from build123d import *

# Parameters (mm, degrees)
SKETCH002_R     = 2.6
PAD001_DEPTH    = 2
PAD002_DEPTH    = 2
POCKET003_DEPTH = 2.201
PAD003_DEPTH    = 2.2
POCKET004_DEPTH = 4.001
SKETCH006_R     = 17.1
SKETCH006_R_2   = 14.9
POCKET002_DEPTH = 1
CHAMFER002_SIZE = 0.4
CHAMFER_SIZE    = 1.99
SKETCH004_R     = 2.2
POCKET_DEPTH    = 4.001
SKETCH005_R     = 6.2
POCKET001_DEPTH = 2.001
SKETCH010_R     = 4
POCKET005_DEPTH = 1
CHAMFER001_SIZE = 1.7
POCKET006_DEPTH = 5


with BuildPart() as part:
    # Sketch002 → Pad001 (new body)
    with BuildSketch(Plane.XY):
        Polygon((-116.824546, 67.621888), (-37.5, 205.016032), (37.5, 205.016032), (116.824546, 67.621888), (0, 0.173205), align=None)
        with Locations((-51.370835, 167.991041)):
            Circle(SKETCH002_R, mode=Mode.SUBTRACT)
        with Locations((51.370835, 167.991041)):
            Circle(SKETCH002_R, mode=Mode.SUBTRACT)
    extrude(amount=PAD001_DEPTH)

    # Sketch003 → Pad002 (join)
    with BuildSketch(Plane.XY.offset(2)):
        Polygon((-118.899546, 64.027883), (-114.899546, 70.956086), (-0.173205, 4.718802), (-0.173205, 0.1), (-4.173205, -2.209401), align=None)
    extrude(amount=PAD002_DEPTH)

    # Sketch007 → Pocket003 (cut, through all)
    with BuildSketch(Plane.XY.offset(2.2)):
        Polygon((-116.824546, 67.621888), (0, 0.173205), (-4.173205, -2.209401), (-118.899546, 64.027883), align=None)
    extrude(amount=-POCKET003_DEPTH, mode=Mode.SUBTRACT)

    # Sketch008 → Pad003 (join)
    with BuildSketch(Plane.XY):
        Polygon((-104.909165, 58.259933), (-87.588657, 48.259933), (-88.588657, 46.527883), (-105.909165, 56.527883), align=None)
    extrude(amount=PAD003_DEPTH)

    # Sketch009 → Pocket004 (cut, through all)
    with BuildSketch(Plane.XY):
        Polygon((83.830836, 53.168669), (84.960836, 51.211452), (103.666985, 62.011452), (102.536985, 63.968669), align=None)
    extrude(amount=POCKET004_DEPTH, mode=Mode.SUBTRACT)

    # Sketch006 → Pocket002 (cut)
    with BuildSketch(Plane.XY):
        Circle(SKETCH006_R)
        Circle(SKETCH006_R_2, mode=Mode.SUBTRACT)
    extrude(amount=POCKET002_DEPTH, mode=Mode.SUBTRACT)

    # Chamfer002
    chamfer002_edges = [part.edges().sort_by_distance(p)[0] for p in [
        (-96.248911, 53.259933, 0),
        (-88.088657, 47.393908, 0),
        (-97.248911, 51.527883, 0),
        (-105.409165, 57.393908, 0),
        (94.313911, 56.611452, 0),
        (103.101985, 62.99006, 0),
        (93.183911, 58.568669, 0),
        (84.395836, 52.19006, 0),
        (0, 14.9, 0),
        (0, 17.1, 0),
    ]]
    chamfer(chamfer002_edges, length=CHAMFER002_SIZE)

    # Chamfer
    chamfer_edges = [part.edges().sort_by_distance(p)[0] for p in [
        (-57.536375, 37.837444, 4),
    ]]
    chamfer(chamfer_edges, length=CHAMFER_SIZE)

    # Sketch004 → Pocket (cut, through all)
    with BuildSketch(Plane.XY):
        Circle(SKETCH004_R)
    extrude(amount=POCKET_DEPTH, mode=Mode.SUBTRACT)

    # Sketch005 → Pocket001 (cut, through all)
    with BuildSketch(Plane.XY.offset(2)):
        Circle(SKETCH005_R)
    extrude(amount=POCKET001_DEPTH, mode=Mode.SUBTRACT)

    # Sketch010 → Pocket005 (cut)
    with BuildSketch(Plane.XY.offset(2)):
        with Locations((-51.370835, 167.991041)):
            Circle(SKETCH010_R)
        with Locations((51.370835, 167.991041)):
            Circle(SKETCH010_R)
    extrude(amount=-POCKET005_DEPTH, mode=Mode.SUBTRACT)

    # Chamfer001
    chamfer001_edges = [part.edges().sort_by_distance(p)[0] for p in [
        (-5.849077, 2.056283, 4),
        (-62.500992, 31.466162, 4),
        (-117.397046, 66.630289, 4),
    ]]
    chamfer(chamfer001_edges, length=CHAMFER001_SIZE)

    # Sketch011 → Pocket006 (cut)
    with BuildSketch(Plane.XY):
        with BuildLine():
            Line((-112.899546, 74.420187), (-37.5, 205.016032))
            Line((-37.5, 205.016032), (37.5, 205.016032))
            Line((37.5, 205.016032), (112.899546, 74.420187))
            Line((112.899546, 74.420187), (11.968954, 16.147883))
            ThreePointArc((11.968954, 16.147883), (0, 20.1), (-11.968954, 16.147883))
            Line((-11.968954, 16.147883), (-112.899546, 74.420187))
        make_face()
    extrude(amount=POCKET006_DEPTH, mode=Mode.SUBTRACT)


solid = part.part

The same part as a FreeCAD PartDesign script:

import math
import FreeCAD as App
import Part
import Sketcher
from FreeCAD import Vector
Q = App.Units.Quantity


def edges_at(feature, points):
    """Names of the edges that pass closest to the given points."""
    edges = feature.Shape.Edges
    near = lambda p: min(range(len(edges)), key=lambda i: edges[i].distToShape(Part.Vertex(*p))[0])
    return sorted({f"Edge{near(p) + 1}" for p in points})

doc = App.newDocument("Part")
body = doc.addObject("PartDesign::Body", "Body")

# Sketch on XY plane
sketch1 = doc.addObject("Sketcher::SketchObject", "Sketch")
body.addObject(sketch1)
sketch1.AttachmentSupport = (doc.XY_Plane, [""])
sketch1.MapMode = "FlatFace"
sketch1.addGeometry([
    Part.LineSegment(Vector(-37.5, 205, 0), Vector(-116.8, 67.6, 0)),  # 0
    Part.LineSegment(Vector(-116.8, 67.6, 0), Vector(0, 0.2, 0)),  # 1
    Part.LineSegment(Vector(0, 0.2, 0), Vector(116.8, 67.6, 0)),  # 2
    Part.LineSegment(Vector(116.8, 67.6, 0), Vector(37.5, 205, 0)),  # 3
    Part.LineSegment(Vector(37.5, 205, 0), Vector(-37.5, 205, 0)),  # 4
    Part.Circle(Vector(51.4, 168, 0), Vector(0, 0, 1), 2.6),  # 5
    Part.Circle(Vector(-51.4, 168, 0), Vector(0, 0, 1), 2.6),  # 6
], False)
sketch1.addConstraint([
    Sketcher.Constraint("Coincident", 0, 2, 1, 1),
    Sketcher.Constraint("Coincident", 1, 2, 2, 1),
    Sketcher.Constraint("Coincident", 2, 2, 3, 1),
    Sketcher.Constraint("Coincident", 3, 2, 4, 1),
    Sketcher.Constraint("Coincident", 4, 2, 0, 1),
    Sketcher.Constraint("Horizontal", 4),
    Sketcher.Constraint("Equal", 5, 6),
    Sketcher.Constraint("Symmetric", 5, 3, 6, 3, -2),
    Sketcher.Constraint("Symmetric", 0, 2, 2, 2, -2),
    Sketcher.Constraint("PointOnObject", 1, 2, -2),
    Sketcher.Constraint("Perpendicular", 0, 1),
    Sketcher.Constraint("Perpendicular", 2, 3),
    Sketcher.Constraint("Diameter", 5, 5.2),
    Sketcher.Constraint("DistanceX", 4, 2, 4, 1, 75.0),
    Sketcher.Constraint("Angle", 0, Q("-120 deg")),
    Sketcher.Constraint("DistanceY", -1, 1, 5, 3, 167.991041),
    Sketcher.Constraint("DistanceY", -1, 1, 0, 2, 67.621888),
    Sketcher.Constraint("DistanceY", -1, 1, 3, 2, 205.016032),
    Sketcher.Constraint("DistanceX", 6, 3, 5, 3, 102.74167),
])
pad1 = doc.addObject("PartDesign::Pad", "Pad")
body.addObject(pad1)
pad1.Profile = sketch1
pad1.Length = 2

# Sketch on XY plane
sketch2 = doc.addObject("Sketcher::SketchObject", "Sketch001")
body.addObject(sketch2)
sketch2.AttachmentSupport = (doc.XY_Plane, [""])
sketch2.MapMode = "FlatFace"
sketch2.AttachmentOffset = App.Placement(Vector(0, 0, 2), App.Rotation())
sketch2.addGeometry([
    Part.LineSegment(Vector(-114.9, 71, 0), Vector(-118.9, 64, 0)),  # 0
    Part.LineSegment(Vector(-118.9, 64, 0), Vector(-4.2, -2.2, 0)),  # 1
    Part.LineSegment(Vector(-4.2, -2.2, 0), Vector(-0.2, 0.1, 0)),  # 2
    Part.LineSegment(Vector(-0.2, 0.1, 0), Vector(-0.2, 4.7, 0)),  # 3
    Part.LineSegment(Vector(-0.2, 4.7, 0), Vector(-114.9, 71, 0)),  # 4
], False)
sketch2.addConstraint([
    Sketcher.Constraint("Coincident", 0, 2, 1, 1),
    Sketcher.Constraint("Coincident", 1, 2, 2, 1),
    Sketcher.Constraint("Coincident", 2, 2, 3, 1),
    Sketcher.Constraint("Coincident", 3, 2, 4, 1),
    Sketcher.Constraint("Coincident", 4, 2, 0, 1),
    Sketcher.Constraint("Vertical", 3),
    Sketcher.Constraint("Perpendicular", 0, 1),
    Sketcher.Constraint("Parallel", 1, 4),
    Sketcher.Constraint("Equal", 1, 4),
    Sketcher.Constraint("Angle", 0, Q("-120.000001 deg")),
    Sketcher.Constraint("Angle", 2, Q("29.999999 deg")),
    Sketcher.Constraint("Distance", 0, 8.0),
    Sketcher.Constraint("DistanceY", -1, 1, 2, 2, 0.1),
    Sketcher.Constraint("DistanceX", 0, 2, 1, 2, 114.726341),
    Sketcher.Constraint("DistanceX", 0, 2, -1, 1, 118.899546),
])
pad2 = doc.addObject("PartDesign::Pad", "Pad001")
body.addObject(pad2)
pad2.Profile = sketch2
pad2.Length = 2

# Sketch on XY plane
sketch3 = doc.addObject("Sketcher::SketchObject", "Sketch002")
body.addObject(sketch3)
sketch3.AttachmentSupport = (doc.XY_Plane, [""])
sketch3.MapMode = "FlatFace"
sketch3.AttachmentOffset = App.Placement(Vector(0, 0, 2.2), App.Rotation())
sketch3.addGeometry([
    Part.LineSegment(Vector(0, 0.2, 0), Vector(-116.8, 67.6, 0)),
    Part.LineSegment(Vector(-116.8, 67.6, 0), Vector(-118.9, 64, 0)),
    Part.LineSegment(Vector(-118.9, 64, 0), Vector(-4.2, -2.2, 0)),
    Part.LineSegment(Vector(-4.2, -2.2, 0), Vector(0, 0.2, 0)),
], False)
sketch3.addConstraint([
    Sketcher.Constraint("Coincident", 0, 2, 1, 1),
    Sketcher.Constraint("Coincident", 1, 2, 2, 1),
    Sketcher.Constraint("Coincident", 2, 2, 3, 1),
    Sketcher.Constraint("Coincident", 3, 2, 0, 1),
    Sketcher.Constraint("PointOnObject", 3, 2, -2),
    Sketcher.Constraint("Perpendicular", 0, 1),
    Sketcher.Constraint("Perpendicular", 1, 2),
    Sketcher.Constraint("Angle", 0, Q("150 deg")),
    Sketcher.Constraint("Distance", 1, 4.15),
    Sketcher.Constraint("DistanceY", 2, 2, -1, 1, 2.209401),
    Sketcher.Constraint("Distance", 3, 4.805461),
    Sketcher.Constraint("DistanceY", -1, 1, 0, 2, 67.621888),
])
pocket1 = doc.addObject("PartDesign::Pocket", "Pocket")
body.addObject(pocket1)
pocket1.Profile = sketch3
pocket1.Type = "ThroughAll"

# Sketch on XY plane
sketch4 = doc.addObject("Sketcher::SketchObject", "Sketch003")
body.addObject(sketch4)
sketch4.AttachmentSupport = (doc.XY_Plane, [""])
sketch4.MapMode = "FlatFace"
sketch4.addGeometry([
    Part.LineSegment(Vector(-87.6, 48.3, 0), Vector(-104.9, 58.3, 0)),
    Part.LineSegment(Vector(-104.9, 58.3, 0), Vector(-105.9, 56.5, 0)),
    Part.LineSegment(Vector(-105.9, 56.5, 0), Vector(-88.6, 46.5, 0)),
    Part.LineSegment(Vector(-88.6, 46.5, 0), Vector(-87.6, 48.3, 0)),
], False)
sketch4.addConstraint([
    Sketcher.Constraint("Coincident", 0, 2, 1, 1),
    Sketcher.Constraint("Coincident", 1, 2, 2, 1),
    Sketcher.Constraint("Coincident", 2, 2, 3, 1),
    Sketcher.Constraint("Coincident", 3, 2, 0, 1),
    Sketcher.Constraint("Perpendicular", 0, 1),
    Sketcher.Constraint("Perpendicular", 1, 2),
    Sketcher.Constraint("Perpendicular", 2, 3),
    Sketcher.Constraint("Angle", 0, Q("150 deg")),
    Sketcher.Constraint("Distance", 0, 20.0),
    Sketcher.Constraint("Distance", 1, 1.999999),
    Sketcher.Constraint("DistanceX", 0, 2, -1, 1, 104.909165),
    Sketcher.Constraint("DistanceY", -1, 1, 0, 2, 58.259933),
])
pad3 = doc.addObject("PartDesign::Pad", "Pad002")
body.addObject(pad3)
pad3.Profile = sketch4
pad3.Length = 2.2

# Sketch on XY plane
sketch5 = doc.addObject("Sketcher::SketchObject", "Sketch004")
body.addObject(sketch5)
sketch5.AttachmentSupport = (doc.XY_Plane, [""])
sketch5.MapMode = "FlatFace"
sketch5.addGeometry([
    Part.LineSegment(Vector(83.8, 53.2, 0), Vector(85, 51.2, 0)),
    Part.LineSegment(Vector(85, 51.2, 0), Vector(103.7, 62, 0)),
    Part.LineSegment(Vector(103.7, 62, 0), Vector(102.5, 64, 0)),
    Part.LineSegment(Vector(102.5, 64, 0), Vector(83.8, 53.2, 0)),
], False)
sketch5.addConstraint([
    Sketcher.Constraint("Coincident", 0, 2, 1, 1),
    Sketcher.Constraint("Coincident", 1, 2, 2, 1),
    Sketcher.Constraint("Coincident", 2, 2, 3, 1),
    Sketcher.Constraint("Coincident", 3, 2, 0, 1),
    Sketcher.Constraint("Perpendicular", 0, 1),
    Sketcher.Constraint("Perpendicular", 1, 2),
    Sketcher.Constraint("Perpendicular", 2, 3),
    Sketcher.Constraint("Angle", 0, Q("-59.999995 deg")),
    Sketcher.Constraint("Distance", 1, 21.6),
    Sketcher.Constraint("Distance", 0, 2.26),
    Sketcher.Constraint("DistanceY", -1, 1, 1, 2, 62.011452),
    Sketcher.Constraint("DistanceX", -1, 1, 0, 2, 84.960836),
])
pocket2 = doc.addObject("PartDesign::Pocket", "Pocket001")
body.addObject(pocket2)
pocket2.Profile = sketch5
pocket2.Type = "ThroughAll"
pocket2.Reversed = True

# Sketch on XY plane
sketch6 = doc.addObject("Sketcher::SketchObject", "Sketch005")
body.addObject(sketch6)
sketch6.AttachmentSupport = (doc.XY_Plane, [""])
sketch6.MapMode = "FlatFace"
sketch6.addGeometry([
    Part.Circle(Vector(0, 0, 0), Vector(0, 0, 1), 17),
    Part.Circle(Vector(0, 0, 0), Vector(0, 0, 1), 15),
], False)
sketch6.addConstraint([
    Sketcher.Constraint("Coincident", 0, 3, -1, 1),
    Sketcher.Constraint("Coincident", 1, 3, -1, 1),
    Sketcher.Constraint("Diameter", 0, 34.2),
    Sketcher.Constraint("Diameter", 1, 29.8),
])
pocket3 = doc.addObject("PartDesign::Pocket", "Pocket002")
body.addObject(pocket3)
pocket3.Profile = sketch6
pocket3.Length = 1
pocket3.Reversed = True
doc.recompute()

chamfer = doc.addObject("PartDesign::Chamfer", "Chamfer")
body.addObject(chamfer)
chamfer.Base = (pocket3, edges_at(pocket3, [
    (-96.249, 53.26, 0),
    (-88.089, 47.394, 0),
    (-97.249, 51.528, 0),
    (-105.409, 57.394, 0),
    (94.314, 56.611, 0),
    (103.102, 62.99, 0),
    (93.184, 58.569, 0),
    (84.396, 52.19, 0),
    (0, 14.9, 0),
    (0, 17.1, 0),
]))
chamfer.Size = 0.4
doc.recompute()

chamfer2 = doc.addObject("PartDesign::Chamfer", "Chamfer001")
body.addObject(chamfer2)
chamfer2.Base = (chamfer, edges_at(chamfer, [(-57.536, 37.837, 4)]))
chamfer2.Size = 1.99

# Sketch on XY plane
sketch7 = doc.addObject("Sketcher::SketchObject", "Sketch006")
body.addObject(sketch7)
sketch7.AttachmentSupport = (doc.XY_Plane, [""])
sketch7.MapMode = "FlatFace"
sketch7.addGeometry(Part.Circle(Vector(0, 0, 0), Vector(0, 0, 1), 2.2), False)
sketch7.addConstraint([
    Sketcher.Constraint("Coincident", 0, 3, -1, 1),
    Sketcher.Constraint("Diameter", 0, 4.4),
])
pocket4 = doc.addObject("PartDesign::Pocket", "Pocket003")
body.addObject(pocket4)
pocket4.Profile = sketch7
pocket4.Type = "ThroughAll"
pocket4.Reversed = True

# Sketch on XY plane
sketch8 = doc.addObject("Sketcher::SketchObject", "Sketch007")
body.addObject(sketch8)
sketch8.AttachmentSupport = (doc.XY_Plane, [""])
sketch8.MapMode = "FlatFace"
sketch8.AttachmentOffset = App.Placement(Vector(0, 0, 2), App.Rotation())
sketch8.addGeometry(Part.Circle(Vector(0, 0, 0), Vector(0, 0, 1), 6), False)
sketch8.addConstraint([
    Sketcher.Constraint("Coincident", 0, 3, -1, 1),
    Sketcher.Constraint("Diameter", 0, 12.4),
])
pocket5 = doc.addObject("PartDesign::Pocket", "Pocket004")
body.addObject(pocket5)
pocket5.Profile = sketch8
pocket5.Type = "ThroughAll"
pocket5.Reversed = True

# Sketch on XY plane
sketch9 = doc.addObject("Sketcher::SketchObject", "Sketch008")
body.addObject(sketch9)
sketch9.AttachmentSupport = (doc.XY_Plane, [""])
sketch9.MapMode = "FlatFace"
sketch9.AttachmentOffset = App.Placement(Vector(0, 0, 2), App.Rotation())
sketch9.addGeometry([
    Part.Circle(Vector(-51.4, 168, 0), Vector(0, 0, 1), 4),
    Part.Circle(Vector(51.4, 168, 0), Vector(0, 0, 1), 4),
], False)
sketch9.addConstraint([
    Sketcher.Constraint("Equal", 0, 1),
    Sketcher.Constraint("Symmetric", 0, 3, 1, 3, -2),
    Sketcher.Constraint("Diameter", 0, 8.0),
    Sketcher.Constraint("DistanceY", -1, 1, 0, 3, 167.991041),
    Sketcher.Constraint("DistanceX", 0, 3, 1, 3, 102.74167),
])
pocket6 = doc.addObject("PartDesign::Pocket", "Pocket005")
body.addObject(pocket6)
pocket6.Profile = sketch9
pocket6.Length = 1
doc.recompute()

chamfer3 = doc.addObject("PartDesign::Chamfer", "Chamfer002")
body.addObject(chamfer3)
chamfer3.Base = (pocket6, edges_at(pocket6, [(-5.849, 2.056, 4), (-62.501, 31.466, 4), (-117.397, 66.63, 4)]))
chamfer3.Size = 1.7

# Sketch on XY plane
sketch10 = doc.addObject("Sketcher::SketchObject", "Sketch009")
body.addObject(sketch10)
sketch10.AttachmentSupport = (doc.XY_Plane, [""])
sketch10.MapMode = "FlatFace"
sketch10.addGeometry([
    Part.LineSegment(Vector(-38, 205, 0), Vector(-113, 74, 0)),  # 0
    Part.LineSegment(Vector(-113, 74, 0), Vector(-12, 16, 0)),  # 1
    Part.ArcOfCircle(Part.Circle(Vector(0, 0, 0), Vector(0, 0, 1), 20), math.radians(53), math.radians(127)),  # 2
    Part.LineSegment(Vector(12, 16, 0), Vector(113, 74, 0)),  # 3
    Part.LineSegment(Vector(113, 74, 0), Vector(38, 205, 0)),  # 4
    Part.LineSegment(Vector(38, 205, 0), Vector(-38, 205, 0)),  # 5
], False)
sketch10.addConstraint([
    Sketcher.Constraint("Coincident", 0, 2, 1, 1),
    Sketcher.Constraint("Coincident", 1, 2, 2, 2),
    Sketcher.Constraint("Coincident", 2, 1, 3, 1),
    Sketcher.Constraint("Coincident", 3, 2, 4, 1),
    Sketcher.Constraint("Coincident", 4, 2, 5, 1),
    Sketcher.Constraint("Coincident", 5, 2, 0, 1),
    Sketcher.Constraint("Horizontal", 5),
    Sketcher.Constraint("Coincident", 2, 3, -1, 1),
    Sketcher.Constraint("Symmetric", 0, 2, 3, 2, -2),
    Sketcher.Constraint("Perpendicular", 0, 1),
    Sketcher.Constraint("Perpendicular", 3, 4),
    Sketcher.Constraint("Horizontal", 1, 2, 2, 1),
    Sketcher.Constraint("Radius", 2, 20.099998),
    Sketcher.Constraint("DistanceX", 5, 2, 5, 1, 75.0),
    Sketcher.Constraint("Angle", 0, Q("-120 deg")),
    Sketcher.Constraint("DistanceX", 0, 2, 2, 1, 124.8685),
    Sketcher.Constraint("Distance", 1, 116.544609),
])
pocket7 = doc.addObject("PartDesign::Pocket", "Pocket006")
body.addObject(pocket7)
pocket7.Profile = sketch10
pocket7.Length = 5
pocket7.Reversed = True

doc.recompute()
